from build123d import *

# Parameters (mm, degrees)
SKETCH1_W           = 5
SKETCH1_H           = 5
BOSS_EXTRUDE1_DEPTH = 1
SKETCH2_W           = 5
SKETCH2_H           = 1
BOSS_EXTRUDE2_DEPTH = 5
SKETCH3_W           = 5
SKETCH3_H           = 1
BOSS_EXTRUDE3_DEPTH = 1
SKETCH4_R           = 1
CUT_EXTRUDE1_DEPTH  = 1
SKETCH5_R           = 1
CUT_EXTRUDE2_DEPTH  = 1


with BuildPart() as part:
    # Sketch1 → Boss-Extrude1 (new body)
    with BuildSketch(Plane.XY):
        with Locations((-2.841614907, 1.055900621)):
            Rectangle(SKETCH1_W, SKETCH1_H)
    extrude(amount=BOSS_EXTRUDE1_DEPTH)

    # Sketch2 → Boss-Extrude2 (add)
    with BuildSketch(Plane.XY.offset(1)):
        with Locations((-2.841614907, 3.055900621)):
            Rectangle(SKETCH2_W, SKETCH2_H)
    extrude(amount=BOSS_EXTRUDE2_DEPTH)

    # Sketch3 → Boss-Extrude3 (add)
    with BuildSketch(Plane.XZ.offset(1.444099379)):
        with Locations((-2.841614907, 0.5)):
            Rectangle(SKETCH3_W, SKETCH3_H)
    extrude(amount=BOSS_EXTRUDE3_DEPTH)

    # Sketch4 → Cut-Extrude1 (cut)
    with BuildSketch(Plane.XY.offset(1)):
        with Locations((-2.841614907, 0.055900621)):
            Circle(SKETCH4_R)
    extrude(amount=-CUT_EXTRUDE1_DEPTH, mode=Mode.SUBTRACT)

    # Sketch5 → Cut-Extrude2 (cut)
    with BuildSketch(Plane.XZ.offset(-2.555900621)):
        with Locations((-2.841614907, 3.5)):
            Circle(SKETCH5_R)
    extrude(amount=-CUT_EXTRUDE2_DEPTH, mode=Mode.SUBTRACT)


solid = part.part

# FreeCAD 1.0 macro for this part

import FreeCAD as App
import Part
import Sketcher

V = App.Vector
Q = App.Units.Quantity

doc = App.newDocument("Part")
params = doc.addObject("Spreadsheet::Sheet", "Params")
for row, (alias, value) in enumerate([
    ("sketch1_width", "5 mm"),
    ("pad1_length", "1 mm"),
    ("sketch2_width", "5 mm"),
    ("sketch2_height", "1 mm"),
    ("pad2_length", "5 mm"),
    ("sketch3_width", "5 mm"),
    ("sketch3_height", "1 mm"),
    ("pad3_length", "1 mm"),
    ("sketch4_diameter", "2 mm"),
    ("pocket1_length", "1 mm"),
    ("sketch5_diameter", "2 mm"),
    ("pocket2_length", "1 mm"),
], start=1):
    params.set(f"A{row}", alias)
    params.set(f"B{row}", "=" + value)
    params.setAlias(f"B{row}", alias)

body = doc.addObject("PartDesign::Body", "Body")

sketch1 = doc.addObject("Sketcher::SketchObject", "Sketch")
body.addObject(sketch1)
sketch1.AttachmentSupport = (doc.XY_Plane, [""])
sketch1.MapMode = "FlatFace"
sketch1.addGeometry(Part.LineSegment(V(-5.341615, 3.555901, 0), V(-5.341615, -1.444099, 0)), False)
sketch1.addGeometry(Part.LineSegment(V(-5.341615, -1.444099, 0), V(-0.341615, -1.444099, 0)), False)
sketch1.addGeometry(Part.LineSegment(V(-0.341615, -1.444099, 0), V(-0.341615, 3.555901, 0)), False)
sketch1.addGeometry(Part.LineSegment(V(-0.341615, 3.555901, 0), V(-5.341615, 3.555901, 0)), False)
sketch1.addConstraint(Sketcher.Constraint("Coincident", 0, 2, 1, 1))
sketch1.addConstraint(Sketcher.Constraint("Coincident", 1, 2, 2, 1))
sketch1.addConstraint(Sketcher.Constraint("Coincident", 2, 2, 3, 1))
sketch1.addConstraint(Sketcher.Constraint("Coincident", 3, 2, 0, 1))
sketch1.addConstraint(Sketcher.Constraint("Vertical", 0))
sketch1.addConstraint(Sketcher.Constraint("Horizontal", 1))
sketch1.addConstraint(Sketcher.Constraint("Vertical", 2))
sketch1.addConstraint(Sketcher.Constraint("Horizontal", 3))
sketch1.addConstraint(Sketcher.Constraint("Equal", 3, 0))
sketch1.addConstraint(Sketcher.Constraint("DistanceX", 1, 1, 1, 2, Q("5 mm")))
sketch1.addConstraint(Sketcher.Constraint("DistanceY", 0, 2, -1, 1, Q("1.444099 mm")))
sketch1.addConstraint(Sketcher.Constraint("DistanceX", 0, 2, -1, 1, Q("5.341615 mm")))
sketch1.setExpression("Constraints[9]", "Params.sketch1_width")
pad1 = doc.addObject("PartDesign::Pad", "Pad")
body.addObject(pad1)
pad1.Profile = sketch1
pad1.setExpression("Length", "Params.pad1_length")

sketch2 = doc.addObject("Sketcher::SketchObject", "Sketch001")
body.addObject(sketch2)
sketch2.AttachmentSupport = (doc.XY_Plane, [""])
sketch2.MapMode = "FlatFace"
sketch2.AttachmentOffset = App.Placement(V(0, 0, 1), App.Rotation())
sketch2.addGeometry(Part.LineSegment(V(-5.341615, 3.555901, 0), V(-5.341615, 2.555901, 0)), False)
sketch2.addGeometry(Part.LineSegment(V(-5.341615, 2.555901, 0), V(-0.341615, 2.555901, 0)), False)
sketch2.addGeometry(Part.LineSegment(V(-0.341615, 2.555901, 0), V(-0.341615, 3.555901, 0)), False)
sketch2.addGeometry(Part.LineSegment(V(-0.341615, 3.555901, 0), V(-5.341615, 3.555901, 0)), False)
sketch2.addConstraint(Sketcher.Constraint("Coincident", 0, 2, 1, 1))
sketch2.addConstraint(Sketcher.Constraint("Coincident", 1, 2, 2, 1))
sketch2.addConstraint(Sketcher.Constraint("Coincident", 2, 2, 3, 1))
sketch2.addConstraint(Sketcher.Constraint("Coincident", 3, 2, 0, 1))
sketch2.addConstraint(Sketcher.Constraint("Vertical", 0))
sketch2.addConstraint(Sketcher.Constraint("Horizontal", 1))
sketch2.addConstraint(Sketcher.Constraint("Vertical", 2))
sketch2.addConstraint(Sketcher.Constraint("Horizontal", 3))
sketch2.addConstraint(Sketcher.Constraint("DistanceX", 1, 1, 1, 2, Q("5 mm")))
sketch2.addConstraint(Sketcher.Constraint("DistanceY", 0, 2, 0, 1, Q("1 mm")))
sketch2.addConstraint(Sketcher.Constraint("DistanceY", -1, 1, 0, 2, Q("2.555901 mm")))
sketch2.addConstraint(Sketcher.Constraint("DistanceX", 0, 2, -1, 1, Q("5.341615 mm")))
sketch2.setExpression("Constraints[8]", "Params.sketch2_width")
sketch2.setExpression("Constraints[9]", "Params.sketch2_height")
pad2 = doc.addObject("PartDesign::Pad", "Pad001")
body.addObject(pad2)
pad2.Profile = sketch2
pad2.setExpression("Length", "Params.pad2_length")

sketch3 = doc.addObject("Sketcher::SketchObject", "Sketch002")
body.addObject(sketch3)
sketch3.AttachmentSupport = (doc.XZ_Plane, [""])
sketch3.MapMode = "FlatFace"
sketch3.AttachmentOffset = App.Placement(V(0, 0, 1.444099), App.Rotation())
sketch3.addGeometry(Part.LineSegment(V(-5.341615, 1, 0), V(-5.341615, 0, 0)), False)
sketch3.addGeometry(Part.LineSegment(V(-5.341615, 0, 0), V(-0.341615, 0, 0)), False)
sketch3.addGeometry(Part.LineSegment(V(-0.341615, 0, 0), V(-0.341615, 1, 0)), False)
sketch3.addGeometry(Part.LineSegment(V(-0.341615, 1, 0), V(-5.341615, 1, 0)), False)
sketch3.addConstraint(Sketcher.Constraint("Coincident", 0, 2, 1, 1))
sketch3.addConstraint(Sketcher.Constraint("Coincident", 1, 2, 2, 1))
sketch3.addConstraint(Sketcher.Constraint("Coincident", 2, 2, 3, 1))
sketch3.addConstraint(Sketcher.Constraint("Coincident", 3, 2, 0, 1))
sketch3.addConstraint(Sketcher.Constraint("Vertical", 0))
sketch3.addConstraint(Sketcher.Constraint("Horizontal", 1))
sketch3.addConstraint(Sketcher.Constraint("Vertical", 2))
sketch3.addConstraint(Sketcher.Constraint("Horizontal", 3))
sketch3.addConstraint(Sketcher.Constraint("PointOnObject", 0, 2, -1))
sketch3.addConstraint(Sketcher.Constraint("DistanceX", 1, 1, 1, 2, Q("5 mm")))
sketch3.addConstraint(Sketcher.Constraint("DistanceY", 0, 2, 0, 1, Q("1 mm")))
sketch3.addConstraint(Sketcher.Constraint("DistanceX", 0, 2, -1, 1, Q("5.341615 mm")))
sketch3.setExpression("Constraints[9]", "Params.sketch3_width")
sketch3.setExpression("Constraints[10]", "Params.sketch3_height")
pad3 = doc.addObject("PartDesign::Pad", "Pad002")
body.addObject(pad3)
pad3.Profile = sketch3
pad3.setExpression("Length", "Params.pad3_length")

sketch4 = doc.addObject("Sketcher::SketchObject", "Sketch003")
body.addObject(sketch4)
sketch4.AttachmentSupport = (doc.XY_Plane, [""])
sketch4.MapMode = "FlatFace"
sketch4.AttachmentOffset = App.Placement(V(0, 0, 1), App.Rotation())
sketch4.addGeometry(Part.Circle(V(-2.841615, 0.055901, 0), V(0, 0, 1), 1), False)
sketch4.addConstraint(Sketcher.Constraint("Diameter", 0, Q("2 mm")))
sketch4.addConstraint(Sketcher.Constraint("DistanceY", -1, 1, 0, 3, Q("0.055901 mm")))
sketch4.addConstraint(Sketcher.Constraint("DistanceX", 0, 3, -1, 1, Q("2.841615 mm")))
sketch4.setExpression("Constraints[0]", "Params.sketch4_diameter")
pocket1 = doc.addObject("PartDesign::Pocket", "Pocket")
body.addObject(pocket1)
pocket1.Profile = sketch4
pocket1.setExpression("Length", "Params.pocket1_length")

sketch5 = doc.addObject("Sketcher::SketchObject", "Sketch004")
body.addObject(sketch5)
sketch5.AttachmentSupport = (doc.XZ_Plane, [""])
sketch5.MapMode = "FlatFace"
sketch5.AttachmentOffset = App.Placement(V(0, 0, -2.555901), App.Rotation())
sketch5.addGeometry(Part.Circle(V(-2.841615, 3.5, 0), V(0, 0, 1), 1), False)
sketch5.addConstraint(Sketcher.Constraint("Diameter", 0, Q("2 mm")))
sketch5.addConstraint(Sketcher.Constraint("DistanceY", -1, 1, 0, 3, Q("3.5 mm")))
sketch5.addConstraint(Sketcher.Constraint("DistanceX", 0, 3, -1, 1, Q("2.841615 mm")))
sketch5.setExpression("Constraints[0]", "Params.sketch5_diameter")
pocket2 = doc.addObject("PartDesign::Pocket", "Pocket001")
body.addObject(pocket2)
pocket2.Profile = sketch5
pocket2.setExpression("Length", "Params.pocket2_length")

doc.recompute()
